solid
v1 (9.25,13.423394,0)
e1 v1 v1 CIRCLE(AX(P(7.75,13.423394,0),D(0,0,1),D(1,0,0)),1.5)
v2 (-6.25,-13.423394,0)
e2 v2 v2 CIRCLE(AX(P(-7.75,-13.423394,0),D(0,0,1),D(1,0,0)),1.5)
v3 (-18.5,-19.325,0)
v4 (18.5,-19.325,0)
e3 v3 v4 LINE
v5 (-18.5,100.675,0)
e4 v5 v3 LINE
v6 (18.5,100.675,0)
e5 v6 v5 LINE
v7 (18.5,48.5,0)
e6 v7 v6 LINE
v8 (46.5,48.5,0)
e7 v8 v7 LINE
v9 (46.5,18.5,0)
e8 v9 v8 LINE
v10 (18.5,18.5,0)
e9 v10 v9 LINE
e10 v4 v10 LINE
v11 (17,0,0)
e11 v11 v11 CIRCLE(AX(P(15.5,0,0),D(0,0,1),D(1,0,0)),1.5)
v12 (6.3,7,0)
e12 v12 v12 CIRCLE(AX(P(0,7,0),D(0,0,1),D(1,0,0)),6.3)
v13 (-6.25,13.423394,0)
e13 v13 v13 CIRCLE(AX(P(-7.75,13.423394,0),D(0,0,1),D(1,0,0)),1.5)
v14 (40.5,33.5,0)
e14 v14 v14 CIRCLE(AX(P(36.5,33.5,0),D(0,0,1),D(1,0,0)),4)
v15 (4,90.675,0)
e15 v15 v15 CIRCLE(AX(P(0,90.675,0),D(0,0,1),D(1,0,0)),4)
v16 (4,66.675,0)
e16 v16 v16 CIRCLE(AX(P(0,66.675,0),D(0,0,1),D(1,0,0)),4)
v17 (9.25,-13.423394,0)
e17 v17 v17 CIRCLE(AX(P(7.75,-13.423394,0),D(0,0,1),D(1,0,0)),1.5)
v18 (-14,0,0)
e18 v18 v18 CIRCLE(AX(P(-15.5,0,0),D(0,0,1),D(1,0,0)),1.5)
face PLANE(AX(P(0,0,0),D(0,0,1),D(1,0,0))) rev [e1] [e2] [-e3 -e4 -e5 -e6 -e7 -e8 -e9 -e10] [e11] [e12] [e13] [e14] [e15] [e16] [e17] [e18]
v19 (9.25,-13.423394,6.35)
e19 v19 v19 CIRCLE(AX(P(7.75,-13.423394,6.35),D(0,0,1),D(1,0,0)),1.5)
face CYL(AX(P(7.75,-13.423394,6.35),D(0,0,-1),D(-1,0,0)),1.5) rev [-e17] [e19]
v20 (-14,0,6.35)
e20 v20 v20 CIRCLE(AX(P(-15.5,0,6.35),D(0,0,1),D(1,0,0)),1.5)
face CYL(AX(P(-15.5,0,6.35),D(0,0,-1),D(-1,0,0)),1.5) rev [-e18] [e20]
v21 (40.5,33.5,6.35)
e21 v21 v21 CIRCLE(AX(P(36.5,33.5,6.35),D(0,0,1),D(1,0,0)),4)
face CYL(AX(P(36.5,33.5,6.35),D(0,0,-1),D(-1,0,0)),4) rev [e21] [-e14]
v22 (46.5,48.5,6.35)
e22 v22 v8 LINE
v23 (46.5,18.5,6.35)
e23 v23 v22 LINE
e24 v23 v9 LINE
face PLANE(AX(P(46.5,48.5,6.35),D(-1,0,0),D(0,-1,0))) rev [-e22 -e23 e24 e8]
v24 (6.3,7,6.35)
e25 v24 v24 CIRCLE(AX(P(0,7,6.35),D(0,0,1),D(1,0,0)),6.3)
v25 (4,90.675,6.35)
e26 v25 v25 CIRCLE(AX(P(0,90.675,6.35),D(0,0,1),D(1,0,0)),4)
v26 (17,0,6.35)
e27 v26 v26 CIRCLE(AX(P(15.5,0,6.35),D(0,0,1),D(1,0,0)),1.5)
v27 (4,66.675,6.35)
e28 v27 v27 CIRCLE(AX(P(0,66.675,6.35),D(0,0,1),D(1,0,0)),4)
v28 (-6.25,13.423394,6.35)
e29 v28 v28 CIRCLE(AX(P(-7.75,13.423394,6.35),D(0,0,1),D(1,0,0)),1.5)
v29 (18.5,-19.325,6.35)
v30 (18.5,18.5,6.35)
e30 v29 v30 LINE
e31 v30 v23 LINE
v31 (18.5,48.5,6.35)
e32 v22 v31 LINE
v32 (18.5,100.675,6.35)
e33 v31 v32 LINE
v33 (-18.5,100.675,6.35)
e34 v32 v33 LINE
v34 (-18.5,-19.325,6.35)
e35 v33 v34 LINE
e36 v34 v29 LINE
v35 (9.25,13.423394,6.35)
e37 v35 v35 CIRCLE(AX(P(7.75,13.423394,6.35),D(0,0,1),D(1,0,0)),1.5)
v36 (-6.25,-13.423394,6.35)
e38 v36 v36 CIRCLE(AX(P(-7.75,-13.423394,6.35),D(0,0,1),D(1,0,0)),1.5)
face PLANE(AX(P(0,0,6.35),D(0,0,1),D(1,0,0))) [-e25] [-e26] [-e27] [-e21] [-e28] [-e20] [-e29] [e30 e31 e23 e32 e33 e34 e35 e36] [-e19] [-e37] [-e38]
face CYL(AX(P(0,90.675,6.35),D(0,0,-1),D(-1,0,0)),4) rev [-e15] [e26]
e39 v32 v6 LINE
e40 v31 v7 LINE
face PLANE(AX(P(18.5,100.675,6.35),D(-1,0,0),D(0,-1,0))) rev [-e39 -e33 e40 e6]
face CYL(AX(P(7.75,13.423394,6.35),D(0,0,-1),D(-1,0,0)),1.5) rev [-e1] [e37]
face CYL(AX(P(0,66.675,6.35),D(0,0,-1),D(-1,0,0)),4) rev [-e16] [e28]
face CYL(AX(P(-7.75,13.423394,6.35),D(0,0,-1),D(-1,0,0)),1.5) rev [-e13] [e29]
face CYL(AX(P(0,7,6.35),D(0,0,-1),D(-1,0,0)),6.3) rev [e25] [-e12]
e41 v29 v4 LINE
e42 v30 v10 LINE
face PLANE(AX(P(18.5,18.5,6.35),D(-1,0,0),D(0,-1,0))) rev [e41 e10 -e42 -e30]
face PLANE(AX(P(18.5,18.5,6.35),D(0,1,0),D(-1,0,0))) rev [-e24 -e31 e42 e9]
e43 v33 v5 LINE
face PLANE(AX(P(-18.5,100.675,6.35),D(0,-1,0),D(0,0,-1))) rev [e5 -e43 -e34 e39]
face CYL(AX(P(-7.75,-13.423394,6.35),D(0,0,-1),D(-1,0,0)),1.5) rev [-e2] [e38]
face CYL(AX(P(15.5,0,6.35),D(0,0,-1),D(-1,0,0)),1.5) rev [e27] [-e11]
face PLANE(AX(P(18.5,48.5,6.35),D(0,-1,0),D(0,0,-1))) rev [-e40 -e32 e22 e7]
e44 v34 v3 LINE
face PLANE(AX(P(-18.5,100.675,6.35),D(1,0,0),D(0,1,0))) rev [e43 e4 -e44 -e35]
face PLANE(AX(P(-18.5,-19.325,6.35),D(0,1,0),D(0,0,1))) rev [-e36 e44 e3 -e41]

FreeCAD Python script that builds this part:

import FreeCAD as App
import Part
import Sketcher

V = App.Vector
Q = App.Units.Quantity

doc = App.newDocument("Part")
body = doc.addObject("PartDesign::Body", "Body")

sketch1 = body.newObject("Sketcher::SketchObject", "Sketch")
sketch1.AttachmentSupport = (doc.getObject("XY_Plane"), [""])
sketch1.MapMode = "FlatFace"
sketch1.addGeometry(Part.LineSegment(V(18.5, 100.7, 0), V(-18.5, 100.7, 0)), False)
sketch1.addGeometry(Part.LineSegment(V(-18.5, 100.7, 0), V(-18.5, -19.3, 0)), False)
sketch1.addGeometry(Part.LineSegment(V(-18.5, -19.3, 0), V(18.5, -19.3, 0)), False)
sketch1.addGeometry(Part.LineSegment(V(18.5, -19.3, 0), V(18.5, 18.5, 0)), False)
sketch1.addGeometry(Part.LineSegment(V(18.5, 18.5, 0), V(46.5, 18.5, 0)), False)
sketch1.addGeometry(Part.LineSegment(V(46.5, 18.5, 0), V(46.5, 48.5, 0)), False)
sketch1.addGeometry(Part.LineSegment(V(46.5, 48.5, 0), V(18.5, 48.5, 0)), False)
sketch1.addGeometry(Part.LineSegment(V(18.5, 48.5, 0), V(18.5, 100.7, 0)), False)
sketch1.addGeometry(Part.Circle(V(15.5, 0, 0), V(0, 0, 1), 1.5), False)
sketch1.addGeometry(Part.Circle(V(36.5, 33.5, 0), V(0, 0, 1), 4), False)
sketch1.addGeometry(Part.Circle(V(7.8, -13.4, 0), V(0, 0, 1), 1.5), False)
sketch1.addGeometry(Part.Circle(V(0, 7, 0), V(0, 0, 1), 6.3), False)
sketch1.addGeometry(Part.Circle(V(-7.8, -13.4, 0), V(0, 0, 1), 1.5), False)
sketch1.addGeometry(Part.Circle(V(-15.5, 0, 0), V(0, 0, 1), 1.5), False)
sketch1.addGeometry(Part.Circle(V(7.8, 13.4, 0), V(0, 0, 1), 1.5), False)
sketch1.addGeometry(Part.Circle(V(-7.8, 13.4, 0), V(0, 0, 1), 1.5), False)
sketch1.addGeometry(Part.Circle(V(0, 66.7, 0), V(0, 0, 1), 4), False)
sketch1.addGeometry(Part.Circle(V(0, 90.7, 0), V(0, 0, 1), 4), False)
sketch1.addConstraint(Sketcher.Constraint("Coincident", 0, 2, 1, 1))
sketch1.addConstraint(Sketcher.Constraint("Coincident", 1, 2, 2, 1))
sketch1.addConstraint(Sketcher.Constraint("Coincident", 2, 2, 3, 1))
sketch1.addConstraint(Sketcher.Constraint("Coincident", 3, 2, 4, 1))
sketch1.addConstraint(Sketcher.Constraint("Coincident", 4, 2, 5, 1))
sketch1.addConstraint(Sketcher.Constraint("Coincident", 5, 2, 6, 1))
sketch1.addConstraint(Sketcher.Constraint("Coincident", 6, 2, 7, 1))
sketch1.addConstraint(Sketcher.Constraint("Coincident", 7, 2, 0, 1))
sketch1.addConstraint(Sketcher.Constraint("Horizontal", 0))
sketch1.addConstraint(Sketcher.Constraint("Vertical", 1))
sketch1.addConstraint(Sketcher.Constraint("Horizontal", 2))
sketch1.addConstraint(Sketcher.Constraint("Vertical", 3))
sketch1.addConstraint(Sketcher.Constraint("Horizontal", 4))
sketch1.addConstraint(Sketcher.Constraint("Vertical", 5))
sketch1.addConstraint(Sketcher.Constraint("Horizontal", 6))
sketch1.addConstraint(Sketcher.Constraint("Vertical", 7))
sketch1.addConstraint(Sketcher.Constraint("Equal", 8, 10))
sketch1.addConstraint(Sketcher.Constraint("Equal", 10, 12))
sketch1.addConstraint(Sketcher.Constraint("Equal", 12, 13))
sketch1.addConstraint(Sketcher.Constraint("Equal", 13, 14))
sketch1.addConstraint(Sketcher.Constraint("Equal", 14, 15))
sketch1.addConstraint(Sketcher.Constraint("Equal", 9, 16))
sketch1.addConstraint(Sketcher.Constraint("Equal", 16, 17))
sketch1.addConstraint(Sketcher.Constraint("Symmetric", 8, 3, 13, 3, -1, 1))
sketch1.addConstraint(Sketcher.Constraint("Symmetric", 12, 3, 14, 3, -1, 1))
sketch1.addConstraint(Sketcher.Constraint("Symmetric", 10, 3, 15, 3, -1, 1))
sketch1.addConstraint(Sketcher.Constraint("Symmetric", 10, 3, 12, 3, -2))
sketch1.addConstraint(Sketcher.Constraint("PointOnObject", 8, 3, -1))
sketch1.addConstraint(Sketcher.Constraint("PointOnObject", 11, 3, -2))
sketch1.addConstraint(Sketcher.Constraint("PointOnObject", 16, 3, -2))
sketch1.addConstraint(Sketcher.Constraint("PointOnObject", 17, 3, -2))
sketch1.addConstraint(Sketcher.Constraint("Vertical", 3, 2, 6, 2))
sketch1.addConstraint(Sketcher.Constraint("Diameter", 8, Q("3 mm")))
sketch1.addConstraint(Sketcher.Constraint("Diameter", 9, Q("8 mm")))
sketch1.addConstraint(Sketcher.Constraint("Diameter", 11, Q("12.6 mm")))
sketch1.addConstraint(Sketcher.Constraint("DistanceX", 0, 2, 0, 1, Q("37 mm")))
sketch1.addConstraint(Sketcher.Constraint("DistanceX", 4, 1, 4, 2, Q("28 mm")))
sketch1.addConstraint(Sketcher.Constraint("DistanceY", 1, 2, 1, 1, Q("120 mm")))
sketch1.addConstraint(Sketcher.Constraint("DistanceY", 5, 1, 5, 2, Q("30 mm")))
sketch1.addConstraint(Sketcher.Constraint("DistanceY", -1, 1, 11, 3, Q("7 mm")))
sketch1.addConstraint(Sketcher.Constraint("DistanceX", 8, 3, 9, 3, Q("21 mm")))
sketch1.addConstraint(Sketcher.Constraint("DistanceX", 13, 3, 8, 3, Q("31 mm")))
sketch1.addConstraint(Sketcher.Constraint("DistanceY", 16, 3, 17, 3, Q("24 mm")))
sketch1.addConstraint(Sketcher.Constraint("DistanceY", 17, 3, 0, 2, Q("10 mm")))
sketch1.addConstraint(Sketcher.Constraint("DistanceX", 0, 2, 9, 3, Q("55 mm")))
sketch1.addConstraint(Sketcher.Constraint("DistanceY", 3, 2, 9, 3, Q("15 mm")))
sketch1.addConstraint(Sketcher.Constraint("DistanceY", -1, 1, 9, 3, Q("33.5 mm")))
sketch1.addConstraint(Sketcher.Constraint("DistanceX", 12, 3, 10, 3, Q("15.5 mm")))
sketch1.addConstraint(Sketcher.Constraint("DistanceY", 3, 1, 3, 2, Q("37.825 mm")))
sketch1.addConstraint(Sketcher.Constraint("DistanceY", 10, 3, -1, 1, Q("13.423394 mm")))
pad1 = body.newObject("PartDesign::Pad", "Pad")
pad1.Profile = sketch1
pad1.Length = 6.35

doc.recompute()
